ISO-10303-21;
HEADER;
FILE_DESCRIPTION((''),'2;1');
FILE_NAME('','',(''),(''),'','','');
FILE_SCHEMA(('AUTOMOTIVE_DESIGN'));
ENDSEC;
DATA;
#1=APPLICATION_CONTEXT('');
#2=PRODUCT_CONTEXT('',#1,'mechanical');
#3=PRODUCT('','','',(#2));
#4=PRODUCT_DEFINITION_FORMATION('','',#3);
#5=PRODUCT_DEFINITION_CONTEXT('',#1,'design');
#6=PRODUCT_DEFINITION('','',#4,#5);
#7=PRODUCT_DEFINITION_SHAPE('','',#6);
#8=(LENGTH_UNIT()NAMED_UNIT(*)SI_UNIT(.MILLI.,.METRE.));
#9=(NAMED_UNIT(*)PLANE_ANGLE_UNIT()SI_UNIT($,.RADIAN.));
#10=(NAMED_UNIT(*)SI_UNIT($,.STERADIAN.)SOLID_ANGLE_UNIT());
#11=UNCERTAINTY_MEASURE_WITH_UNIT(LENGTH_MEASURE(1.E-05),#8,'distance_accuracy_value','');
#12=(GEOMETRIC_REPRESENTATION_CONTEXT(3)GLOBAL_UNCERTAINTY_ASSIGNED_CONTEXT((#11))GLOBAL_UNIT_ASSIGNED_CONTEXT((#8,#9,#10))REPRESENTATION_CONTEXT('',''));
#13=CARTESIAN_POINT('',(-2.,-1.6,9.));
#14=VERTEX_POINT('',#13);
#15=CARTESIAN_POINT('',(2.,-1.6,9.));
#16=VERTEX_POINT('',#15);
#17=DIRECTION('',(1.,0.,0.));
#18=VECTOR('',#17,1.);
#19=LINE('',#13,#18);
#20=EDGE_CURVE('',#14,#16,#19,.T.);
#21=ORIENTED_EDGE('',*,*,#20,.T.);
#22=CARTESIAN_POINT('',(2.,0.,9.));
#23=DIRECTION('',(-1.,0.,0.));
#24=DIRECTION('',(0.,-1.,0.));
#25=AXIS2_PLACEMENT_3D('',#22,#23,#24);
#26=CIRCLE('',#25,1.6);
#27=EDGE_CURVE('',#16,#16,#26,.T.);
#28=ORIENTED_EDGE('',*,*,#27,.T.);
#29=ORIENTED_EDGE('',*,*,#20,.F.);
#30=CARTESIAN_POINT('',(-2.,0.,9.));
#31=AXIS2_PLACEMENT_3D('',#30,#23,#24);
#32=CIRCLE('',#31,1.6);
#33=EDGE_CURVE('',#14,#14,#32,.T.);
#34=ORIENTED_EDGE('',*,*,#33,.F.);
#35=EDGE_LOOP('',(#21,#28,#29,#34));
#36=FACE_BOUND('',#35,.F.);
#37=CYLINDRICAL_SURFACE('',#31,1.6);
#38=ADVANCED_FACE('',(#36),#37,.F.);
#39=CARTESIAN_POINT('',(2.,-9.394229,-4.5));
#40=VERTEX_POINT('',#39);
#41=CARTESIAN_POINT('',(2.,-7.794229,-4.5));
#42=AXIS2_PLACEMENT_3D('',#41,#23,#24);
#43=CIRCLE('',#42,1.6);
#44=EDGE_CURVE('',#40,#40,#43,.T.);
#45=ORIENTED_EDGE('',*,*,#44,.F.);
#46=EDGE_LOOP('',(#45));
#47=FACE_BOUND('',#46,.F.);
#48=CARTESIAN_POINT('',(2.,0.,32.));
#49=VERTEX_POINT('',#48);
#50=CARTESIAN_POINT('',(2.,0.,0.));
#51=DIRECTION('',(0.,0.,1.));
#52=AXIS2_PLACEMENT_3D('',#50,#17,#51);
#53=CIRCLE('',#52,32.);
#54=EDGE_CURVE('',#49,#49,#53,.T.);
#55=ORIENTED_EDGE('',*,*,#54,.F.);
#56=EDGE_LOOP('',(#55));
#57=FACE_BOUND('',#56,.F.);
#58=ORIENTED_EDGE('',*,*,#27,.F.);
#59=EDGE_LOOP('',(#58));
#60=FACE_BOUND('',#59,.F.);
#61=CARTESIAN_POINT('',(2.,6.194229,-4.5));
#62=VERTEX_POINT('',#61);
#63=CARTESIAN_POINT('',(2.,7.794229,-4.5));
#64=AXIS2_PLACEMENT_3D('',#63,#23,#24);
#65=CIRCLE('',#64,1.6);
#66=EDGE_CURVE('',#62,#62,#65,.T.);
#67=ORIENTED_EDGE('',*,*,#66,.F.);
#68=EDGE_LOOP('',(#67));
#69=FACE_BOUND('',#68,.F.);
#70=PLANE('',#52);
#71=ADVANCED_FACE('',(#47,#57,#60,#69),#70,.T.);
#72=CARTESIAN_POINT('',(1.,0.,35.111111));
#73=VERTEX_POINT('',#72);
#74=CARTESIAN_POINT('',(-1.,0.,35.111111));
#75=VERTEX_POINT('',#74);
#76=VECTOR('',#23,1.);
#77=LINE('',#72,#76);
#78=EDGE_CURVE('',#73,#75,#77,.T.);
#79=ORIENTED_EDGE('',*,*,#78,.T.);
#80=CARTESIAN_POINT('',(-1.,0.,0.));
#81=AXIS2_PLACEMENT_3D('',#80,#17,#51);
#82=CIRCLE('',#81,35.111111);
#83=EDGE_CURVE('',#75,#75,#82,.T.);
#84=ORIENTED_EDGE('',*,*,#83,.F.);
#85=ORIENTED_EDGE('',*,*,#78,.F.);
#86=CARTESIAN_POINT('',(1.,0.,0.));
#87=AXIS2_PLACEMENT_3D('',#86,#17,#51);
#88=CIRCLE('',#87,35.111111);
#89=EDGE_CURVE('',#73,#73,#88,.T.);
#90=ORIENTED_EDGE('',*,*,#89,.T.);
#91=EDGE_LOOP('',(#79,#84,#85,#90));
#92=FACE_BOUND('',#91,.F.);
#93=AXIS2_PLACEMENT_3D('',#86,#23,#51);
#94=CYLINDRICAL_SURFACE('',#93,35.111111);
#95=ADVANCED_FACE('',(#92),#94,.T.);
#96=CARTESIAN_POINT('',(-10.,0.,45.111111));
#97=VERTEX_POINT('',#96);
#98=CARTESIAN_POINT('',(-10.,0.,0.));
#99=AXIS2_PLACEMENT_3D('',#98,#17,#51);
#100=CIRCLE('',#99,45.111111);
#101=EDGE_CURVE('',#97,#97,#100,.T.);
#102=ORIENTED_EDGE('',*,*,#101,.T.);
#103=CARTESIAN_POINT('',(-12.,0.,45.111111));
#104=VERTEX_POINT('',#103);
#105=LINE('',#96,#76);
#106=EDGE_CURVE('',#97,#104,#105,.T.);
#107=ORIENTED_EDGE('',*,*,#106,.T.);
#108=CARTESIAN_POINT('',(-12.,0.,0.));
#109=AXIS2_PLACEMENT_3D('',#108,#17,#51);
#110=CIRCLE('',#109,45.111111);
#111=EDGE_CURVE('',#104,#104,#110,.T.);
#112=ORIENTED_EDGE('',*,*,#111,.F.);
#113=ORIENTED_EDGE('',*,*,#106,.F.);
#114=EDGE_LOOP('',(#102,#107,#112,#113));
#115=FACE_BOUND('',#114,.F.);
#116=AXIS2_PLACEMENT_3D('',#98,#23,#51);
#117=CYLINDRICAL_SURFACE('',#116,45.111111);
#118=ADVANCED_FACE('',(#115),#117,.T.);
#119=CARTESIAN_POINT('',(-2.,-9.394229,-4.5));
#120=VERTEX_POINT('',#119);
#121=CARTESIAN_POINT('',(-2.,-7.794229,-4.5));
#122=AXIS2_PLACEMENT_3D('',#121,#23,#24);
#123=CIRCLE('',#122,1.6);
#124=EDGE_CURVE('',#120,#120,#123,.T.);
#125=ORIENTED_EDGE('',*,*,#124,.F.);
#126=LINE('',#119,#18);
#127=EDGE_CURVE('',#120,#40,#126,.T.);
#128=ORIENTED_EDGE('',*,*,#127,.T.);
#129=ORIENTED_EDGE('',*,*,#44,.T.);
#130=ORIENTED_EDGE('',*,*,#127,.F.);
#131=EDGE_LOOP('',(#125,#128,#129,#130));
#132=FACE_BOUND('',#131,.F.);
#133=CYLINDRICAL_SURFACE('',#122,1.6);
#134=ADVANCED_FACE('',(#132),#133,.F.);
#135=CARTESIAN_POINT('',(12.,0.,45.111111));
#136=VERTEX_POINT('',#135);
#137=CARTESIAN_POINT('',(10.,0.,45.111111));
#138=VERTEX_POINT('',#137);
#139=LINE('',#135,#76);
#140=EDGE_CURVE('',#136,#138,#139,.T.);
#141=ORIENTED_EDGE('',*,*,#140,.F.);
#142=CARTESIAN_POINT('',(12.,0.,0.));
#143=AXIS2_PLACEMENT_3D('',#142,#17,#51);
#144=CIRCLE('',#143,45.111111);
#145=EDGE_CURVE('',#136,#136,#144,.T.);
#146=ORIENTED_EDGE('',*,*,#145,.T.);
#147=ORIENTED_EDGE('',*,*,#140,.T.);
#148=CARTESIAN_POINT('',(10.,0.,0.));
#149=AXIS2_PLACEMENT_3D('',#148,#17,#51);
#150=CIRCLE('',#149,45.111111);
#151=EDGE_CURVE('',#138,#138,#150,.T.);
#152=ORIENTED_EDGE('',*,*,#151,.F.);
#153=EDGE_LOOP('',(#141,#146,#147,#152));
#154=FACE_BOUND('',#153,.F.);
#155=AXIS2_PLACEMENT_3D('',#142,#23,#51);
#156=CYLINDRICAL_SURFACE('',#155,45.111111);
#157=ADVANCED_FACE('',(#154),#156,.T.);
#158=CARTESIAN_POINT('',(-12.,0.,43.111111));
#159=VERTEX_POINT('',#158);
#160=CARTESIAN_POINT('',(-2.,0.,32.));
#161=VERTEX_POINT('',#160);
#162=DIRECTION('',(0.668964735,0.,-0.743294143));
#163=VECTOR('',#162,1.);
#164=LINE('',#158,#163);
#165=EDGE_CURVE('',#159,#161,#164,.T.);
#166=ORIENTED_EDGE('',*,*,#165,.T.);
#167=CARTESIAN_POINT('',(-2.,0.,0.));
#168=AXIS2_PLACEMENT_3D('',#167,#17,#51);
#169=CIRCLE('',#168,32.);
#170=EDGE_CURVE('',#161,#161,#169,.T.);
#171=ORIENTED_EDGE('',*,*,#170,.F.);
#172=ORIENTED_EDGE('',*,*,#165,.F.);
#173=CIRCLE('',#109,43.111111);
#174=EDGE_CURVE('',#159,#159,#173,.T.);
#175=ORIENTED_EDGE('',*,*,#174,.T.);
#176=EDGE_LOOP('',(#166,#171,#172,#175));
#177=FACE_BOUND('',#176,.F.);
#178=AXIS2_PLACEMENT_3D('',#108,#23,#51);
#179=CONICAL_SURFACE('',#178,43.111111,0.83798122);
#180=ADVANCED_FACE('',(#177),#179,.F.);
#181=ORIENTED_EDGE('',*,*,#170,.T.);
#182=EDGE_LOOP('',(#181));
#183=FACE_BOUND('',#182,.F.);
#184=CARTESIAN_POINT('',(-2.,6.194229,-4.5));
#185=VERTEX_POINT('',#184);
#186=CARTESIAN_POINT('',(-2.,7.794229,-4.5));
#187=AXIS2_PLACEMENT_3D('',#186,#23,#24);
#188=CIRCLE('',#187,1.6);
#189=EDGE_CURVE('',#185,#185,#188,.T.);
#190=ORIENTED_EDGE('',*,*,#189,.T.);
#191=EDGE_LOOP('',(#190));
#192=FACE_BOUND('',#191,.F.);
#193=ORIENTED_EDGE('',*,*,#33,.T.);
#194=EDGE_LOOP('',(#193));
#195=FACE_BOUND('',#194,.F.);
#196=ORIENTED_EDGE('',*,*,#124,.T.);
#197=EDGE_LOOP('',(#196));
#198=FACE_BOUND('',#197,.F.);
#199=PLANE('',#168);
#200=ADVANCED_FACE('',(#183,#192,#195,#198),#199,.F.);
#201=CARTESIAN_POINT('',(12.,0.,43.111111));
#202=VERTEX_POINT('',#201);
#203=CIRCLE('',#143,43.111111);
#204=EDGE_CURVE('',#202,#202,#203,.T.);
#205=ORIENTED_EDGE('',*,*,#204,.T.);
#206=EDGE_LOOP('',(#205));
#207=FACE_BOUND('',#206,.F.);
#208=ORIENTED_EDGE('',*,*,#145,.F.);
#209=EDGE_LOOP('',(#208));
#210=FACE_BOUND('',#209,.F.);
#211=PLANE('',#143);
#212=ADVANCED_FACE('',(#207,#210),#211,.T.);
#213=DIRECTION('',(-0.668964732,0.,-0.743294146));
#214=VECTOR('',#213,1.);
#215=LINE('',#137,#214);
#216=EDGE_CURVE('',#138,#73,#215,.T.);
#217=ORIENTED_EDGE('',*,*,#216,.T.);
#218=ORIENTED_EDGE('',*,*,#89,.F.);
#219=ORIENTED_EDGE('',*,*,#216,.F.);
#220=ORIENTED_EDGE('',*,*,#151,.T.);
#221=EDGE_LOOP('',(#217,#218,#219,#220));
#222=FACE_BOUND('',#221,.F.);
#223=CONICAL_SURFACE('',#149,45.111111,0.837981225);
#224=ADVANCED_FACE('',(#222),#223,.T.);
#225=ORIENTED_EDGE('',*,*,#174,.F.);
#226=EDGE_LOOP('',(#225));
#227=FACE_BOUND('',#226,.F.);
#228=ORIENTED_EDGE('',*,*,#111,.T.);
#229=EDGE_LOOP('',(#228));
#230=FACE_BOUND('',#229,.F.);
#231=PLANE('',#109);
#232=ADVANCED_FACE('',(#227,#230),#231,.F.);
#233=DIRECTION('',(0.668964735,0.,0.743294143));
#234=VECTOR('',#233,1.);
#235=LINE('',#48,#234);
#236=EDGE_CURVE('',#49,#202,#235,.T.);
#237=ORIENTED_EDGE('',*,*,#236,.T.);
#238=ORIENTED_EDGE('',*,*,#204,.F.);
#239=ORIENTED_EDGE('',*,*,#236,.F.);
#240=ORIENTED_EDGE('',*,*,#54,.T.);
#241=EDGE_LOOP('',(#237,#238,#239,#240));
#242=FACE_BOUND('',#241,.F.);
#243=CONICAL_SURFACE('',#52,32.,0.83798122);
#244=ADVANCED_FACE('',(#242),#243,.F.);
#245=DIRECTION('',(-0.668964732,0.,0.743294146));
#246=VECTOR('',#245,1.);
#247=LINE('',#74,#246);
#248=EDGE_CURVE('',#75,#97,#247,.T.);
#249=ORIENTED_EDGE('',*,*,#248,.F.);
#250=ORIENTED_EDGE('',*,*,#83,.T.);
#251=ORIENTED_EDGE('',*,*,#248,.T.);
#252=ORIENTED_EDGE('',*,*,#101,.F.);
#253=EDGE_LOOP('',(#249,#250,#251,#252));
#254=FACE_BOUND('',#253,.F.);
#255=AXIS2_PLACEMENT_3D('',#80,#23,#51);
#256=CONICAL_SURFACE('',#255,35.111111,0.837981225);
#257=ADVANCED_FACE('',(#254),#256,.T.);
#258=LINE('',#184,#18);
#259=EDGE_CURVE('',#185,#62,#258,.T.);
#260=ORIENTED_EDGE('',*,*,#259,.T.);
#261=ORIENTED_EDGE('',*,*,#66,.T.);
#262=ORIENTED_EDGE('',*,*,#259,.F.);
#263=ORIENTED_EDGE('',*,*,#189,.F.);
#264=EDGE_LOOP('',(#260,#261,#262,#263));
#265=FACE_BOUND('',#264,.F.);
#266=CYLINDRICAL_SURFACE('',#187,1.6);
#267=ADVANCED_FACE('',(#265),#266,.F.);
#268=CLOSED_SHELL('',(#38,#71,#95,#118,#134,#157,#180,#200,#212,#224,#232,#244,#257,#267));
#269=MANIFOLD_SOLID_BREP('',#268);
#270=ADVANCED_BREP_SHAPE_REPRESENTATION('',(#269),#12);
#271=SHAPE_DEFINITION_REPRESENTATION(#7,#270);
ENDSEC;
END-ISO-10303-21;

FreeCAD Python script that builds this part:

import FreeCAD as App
import Part
import Sketcher
from FreeCAD import Vector
Q = App.Units.Quantity


def add_polygon(sketch, points):
    """Adds a closed chain of lines whose ends are joined by coincident constraints."""
    first, n = sketch.GeometryCount, len(points)
    for a, b in zip(points, points[1:] + points[:1]):
        sketch.addGeometry(Part.LineSegment(App.Vector(*a, 0), App.Vector(*b, 0)), False)
    for i in range(n):
        sketch.addConstraint(Sketcher.Constraint("Coincident", first + i, 2, first + (i + 1) % n, 1))

doc = App.newDocument("Part")
params = doc.addObject("Spreadsheet::Sheet", "Params")
for row, (alias, value) in enumerate([
    ("sketch1_width", "2 mm"),
    ("sketch1_width2", "4 mm"),
    ("sketch1_height", "32 mm"),
    ("revolution_angle", "360 deg"),
    ("sketch2_diameter", "3.2 mm"),
], start=1):
    params.set(f"A{row}", alias)
    params.set(f"B{row}", "=" + value)
    params.setAlias(f"B{row}", alias)

body = doc.addObject("PartDesign::Body", "Body")

sketch1 = doc.addObject("Sketcher::SketchObject", "Sketch")
body.addObject(sketch1)
sketch1.AttachmentSupport = (doc.XZ_Plane, [""])
sketch1.MapMode = "FlatFace"
add_polygon(sketch1, [(-10, 45.111111), (-12, 45.111111), (-12, 43.111111), (-2, 32), (-2, 0), (2, 0), (2, 32), (12, 43.111111), (12, 45.111111), (10, 45.111111), (1, 35.111111), (-1, 35.111111)])
sketch1.addConstraint([
    Sketcher.Constraint("Horizontal", 0),
    Sketcher.Constraint("Vertical", 1),
    Sketcher.Constraint("Vertical", 3),
    Sketcher.Constraint("Horizontal", 4),
    Sketcher.Constraint("Vertical", 5),
    Sketcher.Constraint("Vertical", 7),
    Sketcher.Constraint("Horizontal", 8),
    Sketcher.Constraint("Horizontal", 10),
    Sketcher.Constraint("Symmetric", 3, 2, 4, 2, -1, 1),
    Sketcher.Constraint("Symmetric", 1, 2, 6, 2, -2),
    Sketcher.Constraint("Symmetric", 8, 2, 11, 2, -2),
    Sketcher.Constraint("Parallel", 6, 9),
    Sketcher.Constraint("Parallel", 2, 11),
    Sketcher.Constraint("Horizontal", 2, 2, 5, 2),
    Sketcher.Constraint("Equal", 8, 10),
    Sketcher.Constraint("Equal", 10, 1),
    Sketcher.Constraint("DistanceX", 0, 2, 0, 1, Q("2 mm")),
    Sketcher.Constraint("DistanceX", 4, 1, 4, 2, Q("4 mm")),
    Sketcher.Constraint("DistanceY", 3, 2, 3, 1, Q("32 mm")),
    Sketcher.Constraint("DistanceX", 0, 2, -1, 1, Q("12 mm")),
    Sketcher.Constraint("DistanceY", 9, 2, 8, 2, Q("10 mm")),
])
sketch1.setExpression("Constraints[28]", "Params.sketch1_width")
sketch1.setExpression("Constraints[29]", "Params.sketch1_width2")
sketch1.setExpression("Constraints[30]", "Params.sketch1_height")
revolution = doc.addObject("PartDesign::Revolution", "Revolution")
body.addObject(revolution)
revolution.Profile = sketch1
revolution.ReferenceAxis = (sketch1, ["H_Axis"])
revolution.setExpression("Angle", "Params.revolution_angle")

sketch2 = doc.addObject("Sketcher::SketchObject", "Sketch001")
body.addObject(sketch2)
sketch2.AttachmentSupport = (doc.YZ_Plane, [""])
sketch2.MapMode = "FlatFace"
sketch2.AttachmentOffset = App.Placement(Vector(0, 0, -2), App.Rotation())
sketch2.addGeometry([
    Part.Circle(Vector(7.794229, -4.5, 0), Vector(0, 0, 1), 1.6),
    Part.Circle(Vector(-7.794229, -4.5, 0), Vector(0, 0, 1), 1.6),
    Part.Circle(Vector(0, 9, 0), Vector(0, 0, 1), 1.6),
], False)
sketch2.addConstraint([
    Sketcher.Constraint("Equal", 0, 1),
    Sketcher.Constraint("Equal", 1, 2),
    Sketcher.Constraint("Symmetric", 0, 3, 1, 3, -2),
    Sketcher.Constraint("PointOnObject", 2, 3, -2),
    Sketcher.Constraint("Diameter", 0, Q("3.2 mm")),
    Sketcher.Constraint("DistanceY", -1, 1, 2, 3, Q("9 mm")),
    Sketcher.Constraint("DistanceY", 0, 3, -1, 1, Q("4.5 mm")),
    Sketcher.Constraint("DistanceX", -1, 1, 0, 3, Q("7.794229 mm")),
])
sketch2.setExpression("Constraints[4]", "Params.sketch2_diameter")
pocket1 = doc.addObject("PartDesign::Pocket", "Pocket")
body.addObject(pocket1)
pocket1.Profile = sketch2
pocket1.Type = "ThroughAll"
pocket1.Reversed = True

doc.recompute()
